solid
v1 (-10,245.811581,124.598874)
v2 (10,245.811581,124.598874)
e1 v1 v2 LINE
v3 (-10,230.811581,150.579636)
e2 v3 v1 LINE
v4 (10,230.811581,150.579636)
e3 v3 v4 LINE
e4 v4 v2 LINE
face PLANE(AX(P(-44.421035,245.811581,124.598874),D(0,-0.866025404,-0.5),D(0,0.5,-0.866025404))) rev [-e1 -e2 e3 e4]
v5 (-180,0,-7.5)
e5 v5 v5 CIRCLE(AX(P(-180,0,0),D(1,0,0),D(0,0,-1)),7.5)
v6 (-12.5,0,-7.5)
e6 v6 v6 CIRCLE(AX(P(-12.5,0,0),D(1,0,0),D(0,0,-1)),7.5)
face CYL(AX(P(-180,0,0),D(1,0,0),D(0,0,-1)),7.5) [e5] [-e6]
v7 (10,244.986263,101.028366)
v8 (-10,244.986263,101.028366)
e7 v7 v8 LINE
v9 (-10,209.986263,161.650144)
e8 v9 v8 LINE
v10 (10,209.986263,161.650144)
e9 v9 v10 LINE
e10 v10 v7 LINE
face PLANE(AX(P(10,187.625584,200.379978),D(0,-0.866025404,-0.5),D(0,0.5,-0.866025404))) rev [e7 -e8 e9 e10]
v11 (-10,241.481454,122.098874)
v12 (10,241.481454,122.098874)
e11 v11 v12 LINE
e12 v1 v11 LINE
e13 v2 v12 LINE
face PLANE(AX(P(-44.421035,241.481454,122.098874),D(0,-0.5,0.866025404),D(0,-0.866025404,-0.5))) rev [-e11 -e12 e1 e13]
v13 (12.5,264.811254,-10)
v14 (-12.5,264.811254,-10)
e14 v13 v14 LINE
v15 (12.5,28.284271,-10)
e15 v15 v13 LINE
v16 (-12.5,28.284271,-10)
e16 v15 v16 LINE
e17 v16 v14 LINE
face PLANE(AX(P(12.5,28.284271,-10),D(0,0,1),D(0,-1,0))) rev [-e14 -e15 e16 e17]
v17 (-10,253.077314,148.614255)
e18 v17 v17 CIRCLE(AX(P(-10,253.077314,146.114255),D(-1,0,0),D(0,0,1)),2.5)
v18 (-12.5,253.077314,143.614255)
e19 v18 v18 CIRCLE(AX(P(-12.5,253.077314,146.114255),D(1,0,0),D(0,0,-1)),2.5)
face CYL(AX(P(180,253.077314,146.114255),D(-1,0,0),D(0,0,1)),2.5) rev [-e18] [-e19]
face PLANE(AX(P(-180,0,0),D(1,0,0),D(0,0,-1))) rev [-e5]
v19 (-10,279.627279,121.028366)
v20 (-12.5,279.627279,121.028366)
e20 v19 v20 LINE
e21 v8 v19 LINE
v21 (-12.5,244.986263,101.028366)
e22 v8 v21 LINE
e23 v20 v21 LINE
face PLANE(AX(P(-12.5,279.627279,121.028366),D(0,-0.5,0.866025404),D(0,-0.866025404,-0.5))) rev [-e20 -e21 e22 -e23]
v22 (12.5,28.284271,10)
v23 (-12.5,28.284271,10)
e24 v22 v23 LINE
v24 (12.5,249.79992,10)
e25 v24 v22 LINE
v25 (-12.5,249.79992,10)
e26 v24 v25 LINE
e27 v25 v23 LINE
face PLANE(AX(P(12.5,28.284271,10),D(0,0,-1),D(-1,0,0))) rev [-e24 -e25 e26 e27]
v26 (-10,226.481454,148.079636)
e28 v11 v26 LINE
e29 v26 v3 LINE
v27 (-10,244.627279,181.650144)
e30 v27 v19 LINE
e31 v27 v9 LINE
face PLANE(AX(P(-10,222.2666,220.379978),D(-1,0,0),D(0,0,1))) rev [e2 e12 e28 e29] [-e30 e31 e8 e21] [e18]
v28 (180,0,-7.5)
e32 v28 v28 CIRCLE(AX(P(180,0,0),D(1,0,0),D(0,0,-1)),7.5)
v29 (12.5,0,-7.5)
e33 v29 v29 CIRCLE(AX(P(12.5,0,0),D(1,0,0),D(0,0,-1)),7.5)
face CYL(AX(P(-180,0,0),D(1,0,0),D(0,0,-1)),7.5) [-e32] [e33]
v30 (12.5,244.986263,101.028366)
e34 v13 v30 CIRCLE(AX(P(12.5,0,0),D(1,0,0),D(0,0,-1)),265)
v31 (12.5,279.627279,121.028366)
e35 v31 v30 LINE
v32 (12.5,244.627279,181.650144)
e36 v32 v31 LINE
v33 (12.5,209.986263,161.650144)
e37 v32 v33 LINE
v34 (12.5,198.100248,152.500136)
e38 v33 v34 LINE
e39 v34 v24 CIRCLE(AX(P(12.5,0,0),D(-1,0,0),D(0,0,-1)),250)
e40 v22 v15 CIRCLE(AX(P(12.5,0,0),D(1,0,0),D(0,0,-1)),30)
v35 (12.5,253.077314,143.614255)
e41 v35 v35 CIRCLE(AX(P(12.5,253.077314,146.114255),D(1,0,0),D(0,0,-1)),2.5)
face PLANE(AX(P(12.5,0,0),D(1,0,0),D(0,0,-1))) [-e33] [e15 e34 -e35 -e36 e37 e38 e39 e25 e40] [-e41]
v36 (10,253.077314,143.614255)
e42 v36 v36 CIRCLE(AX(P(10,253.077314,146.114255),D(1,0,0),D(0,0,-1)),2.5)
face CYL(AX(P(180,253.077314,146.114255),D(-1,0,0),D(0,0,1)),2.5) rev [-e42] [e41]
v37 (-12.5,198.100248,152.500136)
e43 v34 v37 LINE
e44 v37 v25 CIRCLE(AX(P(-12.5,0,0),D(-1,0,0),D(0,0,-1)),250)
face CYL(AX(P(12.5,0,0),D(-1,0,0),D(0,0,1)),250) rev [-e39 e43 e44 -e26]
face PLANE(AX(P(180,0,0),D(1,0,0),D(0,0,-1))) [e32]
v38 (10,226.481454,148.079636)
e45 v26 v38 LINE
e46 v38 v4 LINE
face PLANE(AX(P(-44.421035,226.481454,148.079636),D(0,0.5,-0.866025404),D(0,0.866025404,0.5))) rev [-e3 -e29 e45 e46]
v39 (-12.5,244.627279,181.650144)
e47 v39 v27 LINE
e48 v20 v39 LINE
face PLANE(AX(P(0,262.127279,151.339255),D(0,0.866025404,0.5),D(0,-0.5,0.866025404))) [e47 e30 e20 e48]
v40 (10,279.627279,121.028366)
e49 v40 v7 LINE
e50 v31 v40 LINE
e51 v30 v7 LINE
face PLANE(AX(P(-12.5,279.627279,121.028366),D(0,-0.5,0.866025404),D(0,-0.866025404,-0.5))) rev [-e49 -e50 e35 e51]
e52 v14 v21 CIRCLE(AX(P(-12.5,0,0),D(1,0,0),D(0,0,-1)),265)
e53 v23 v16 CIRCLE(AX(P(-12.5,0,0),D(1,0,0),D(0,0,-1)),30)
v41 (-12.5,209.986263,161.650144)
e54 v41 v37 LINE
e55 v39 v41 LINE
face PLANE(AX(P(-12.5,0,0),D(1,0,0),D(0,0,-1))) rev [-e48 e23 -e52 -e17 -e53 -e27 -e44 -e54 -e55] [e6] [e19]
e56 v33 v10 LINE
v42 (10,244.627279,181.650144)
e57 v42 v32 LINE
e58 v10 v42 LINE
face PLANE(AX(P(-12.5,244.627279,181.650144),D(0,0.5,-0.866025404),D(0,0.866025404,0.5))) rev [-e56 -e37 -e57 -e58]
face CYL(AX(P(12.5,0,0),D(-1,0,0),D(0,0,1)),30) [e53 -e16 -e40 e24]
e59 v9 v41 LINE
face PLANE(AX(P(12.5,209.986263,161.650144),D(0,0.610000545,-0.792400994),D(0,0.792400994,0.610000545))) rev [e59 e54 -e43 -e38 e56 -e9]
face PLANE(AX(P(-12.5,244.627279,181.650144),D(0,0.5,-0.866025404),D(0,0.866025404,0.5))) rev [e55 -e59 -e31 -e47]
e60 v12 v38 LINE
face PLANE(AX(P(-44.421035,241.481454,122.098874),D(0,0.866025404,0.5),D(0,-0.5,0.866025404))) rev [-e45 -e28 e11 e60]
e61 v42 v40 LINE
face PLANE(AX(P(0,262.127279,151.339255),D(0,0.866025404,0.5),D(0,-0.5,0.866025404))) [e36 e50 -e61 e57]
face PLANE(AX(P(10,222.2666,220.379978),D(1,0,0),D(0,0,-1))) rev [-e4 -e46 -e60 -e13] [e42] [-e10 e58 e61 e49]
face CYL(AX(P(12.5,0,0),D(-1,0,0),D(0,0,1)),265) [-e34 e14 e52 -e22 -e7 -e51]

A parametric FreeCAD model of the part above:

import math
import FreeCAD as App
import Part
import Sketcher

V = App.Vector
Q = App.Units.Quantity

doc = App.newDocument("Part")
body = doc.addObject("PartDesign::Body", "Body")

sketch1 = body.newObject("Sketcher::SketchObject", "Sketch")
sketch1.AttachmentSupport = (doc.getObject("YZ_Plane"), [""])
sketch1.MapMode = "FlatFace"
sketch1.addGeometry([
    Part.LineSegment(V(28, -10, 0), V(265, -10, 0)),
    Part.ArcOfCircle(Part.Circle(V(0, 0, 0), V(0, 0, 1), 265), math.radians(-2), math.radians(22)),
    Part.LineSegment(V(245, 101, 0), V(210, 162, 0)),
    Part.LineSegment(V(210, 162, 0), V(198, 153, 0)),
    Part.ArcOfCircle(Part.Circle(V(0, 0, 0), V(0, 0, 1), 250), math.radians(2), math.radians(38)),
    Part.LineSegment(V(250, 10, 0), V(28, 10, 0)),
    Part.ArcOfCircle(Part.Circle(V(0, 0, 0), V(0, 0, 1), 30), math.radians(19), math.radians(341)),
], False)
sketch1.addConstraint([
    Sketcher.Constraint("Coincident", 0, 2, 1, 1),
    Sketcher.Constraint("Coincident", 1, 2, 2, 1),
    Sketcher.Constraint("Coincident", 2, 2, 3, 1),
    Sketcher.Constraint("Coincident", 3, 2, 4, 2),
    Sketcher.Constraint("Coincident", 4, 1, 5, 1),
    Sketcher.Constraint("Coincident", 5, 2, 6, 1),
    Sketcher.Constraint("Coincident", 6, 2, 0, 1),
    Sketcher.Constraint("Horizontal", 0),
    Sketcher.Constraint("Horizontal", 5),
    Sketcher.Constraint("Coincident", 1, 3, -1, 1),
    Sketcher.Constraint("Coincident", 4, 3, -1, 1),
    Sketcher.Constraint("Coincident", 6, 3, -1, 1),
    Sketcher.Constraint("Vertical", 5, 2, 6, 2),
    Sketcher.Constraint("Radius", 1, 265.0),
    Sketcher.Constraint("Radius", 4, 250.0),
    Sketcher.Constraint("Radius", 6, 30.0),
    Sketcher.Constraint("Angle", 2, Q("120 deg")),
    Sketcher.Constraint("Distance", 2, 70.0),
    Sketcher.Constraint("Distance", 3, 15.0),
    Sketcher.Constraint("DistanceY", 0, 2, -1, 1, 10.0),
    Sketcher.Constraint("DistanceX", -1, 1, 3, 2, 198.100248),
])
pad1 = body.newObject("PartDesign::Pad", "Pad")
pad1.Profile = sketch1
pad1.Type = "TwoLengths"
pad1.Length = 12.5
pad1.Length2 = 12.5

sketch2 = body.newObject("Sketcher::SketchObject", "Sketch001")
sketch2.AttachmentSupport = (doc.getObject("YZ_Plane"), [""])
sketch2.MapMode = "FlatFace"
sketch2.addGeometry(Part.Circle(V(0, 0, 0), V(0, 0, 1), 8), False)
sketch2.addConstraint([
    Sketcher.Constraint("Coincident", 0, 3, -1, 1),
    Sketcher.Constraint("Diameter", 0, 15.0),
])
pad2 = body.newObject("PartDesign::Pad", "Pad001")
pad2.Profile = sketch2
pad2.Type = "TwoLengths"
pad2.Length = 180
pad2.Length2 = 180

sketch3 = body.newObject("Sketcher::SketchObject", "Sketch002")
sketch3.Placement = App.Placement(V(0, 227.486263, 131.339255), App.Rotation(V(1, 0, 0), V(0, 0.5, -0.866025404), V(0, 0.866025404, 0.5), "ZXY"))
sketch3.addGeometry([
    Part.LineSegment(V(-12, 35, 0), V(-12, -35, 0)),
    Part.LineSegment(V(-12, -35, 0), V(12, -35, 0)),
    Part.LineSegment(V(12, -35, 0), V(12, 35, 0)),
    Part.LineSegment(V(12, 35, 0), V(-12, 35, 0)),
], False)
sketch3.addConstraint([
    Sketcher.Constraint("Coincident", 0, 2, 1, 1),
    Sketcher.Constraint("Coincident", 1, 2, 2, 1),
    Sketcher.Constraint("Coincident", 2, 2, 3, 1),
    Sketcher.Constraint("Coincident", 3, 2, 0, 1),
    Sketcher.Constraint("Vertical", 0),
    Sketcher.Constraint("Horizontal", 1),
    Sketcher.Constraint("Vertical", 2),
    Sketcher.Constraint("Horizontal", 3),
    Sketcher.Constraint("Symmetric", 0, 2, 2, 2, -1, 1),
    Sketcher.Constraint("DistanceX", 1, 1, 1, 2, 25.0),
    Sketcher.Constraint("DistanceY", 0, 2, 0, 1, 70.0),
])
pad3 = body.newObject("PartDesign::Pad", "Pad002")
pad3.Profile = sketch3
pad3.Length = 40

sketch4 = body.newObject("Sketcher::SketchObject", "Sketch003")
sketch4.Placement = App.Placement(V(0, 17.5, -30.310889), App.Rotation(V(-1, 0, 0), V(0, 0.866025404, 0.5), V(0, 0.5, -0.866025404), "ZXY"))
sketch4.addGeometry([
    Part.LineSegment(V(-10, 303, 0), V(-10, 263, 0)),
    Part.LineSegment(V(-10, 263, 0), V(10, 263, 0)),
    Part.LineSegment(V(10, 263, 0), V(10, 303, 0)),
    Part.LineSegment(V(10, 303, 0), V(-10, 303, 0)),
], False)
sketch4.addConstraint([
    Sketcher.Constraint("Coincident", 0, 2, 1, 1),
    Sketcher.Constraint("Coincident", 1, 2, 2, 1),
    Sketcher.Constraint("Coincident", 2, 2, 3, 1),
    Sketcher.Constraint("Coincident", 3, 2, 0, 1),
    Sketcher.Constraint("Vertical", 0),
    Sketcher.Constraint("Horizontal", 1),
    Sketcher.Constraint("Vertical", 2),
    Sketcher.Constraint("Horizontal", 3),
    Sketcher.Constraint("DistanceX", 1, 1, 1, 2, 20.0),
    Sketcher.Constraint("DistanceY", 0, 2, 0, 1, 40.0),
    Sketcher.Constraint("DistanceX", 0, 2, -1, 1, 10.0),
    Sketcher.Constraint("DistanceY", -1, 1, 0, 2, 262.678511),
])
pocket1 = body.newObject("PartDesign::Pocket", "Pocket")
pocket1.Profile = sketch4
pocket1.Length = 70

sketch5 = body.newObject("Sketcher::SketchObject", "Sketch004")
sketch5.AttachmentSupport = (doc.getObject("YZ_Plane"), [""])
sketch5.MapMode = "FlatFace"
sketch5.AttachmentOffset = App.Placement(V(0, 0, 10), App.Rotation())
sketch5.addGeometry(Part.Circle(V(253.1, 146.1, 0), V(0, 0, 1), 2.5), False)
sketch5.addConstraint([
    Sketcher.Constraint("Diameter", 0, 5.0),
    Sketcher.Constraint("DistanceX", -1, 1, 0, 3, 253.077314),
    Sketcher.Constraint("DistanceY", -1, 1, 0, 3, 146.114255),
])
pocket2 = body.newObject("PartDesign::Pocket", "Pocket001")
pocket2.Profile = sketch5
pocket2.Type = "ThroughAll"
pocket2.Midplane = True

sketch6 = body.newObject("Sketcher::SketchObject", "Sketch005")
sketch6.AttachmentSupport = (doc.getObject("YZ_Plane"), [""])
sketch6.MapMode = "FlatFace"
sketch6.AttachmentOffset = App.Placement(V(0, 0, 10), App.Rotation())
sketch6.addGeometry([
    Part.LineSegment(V(246, 125, 0), V(241, 122, 0)),
    Part.LineSegment(V(241, 122, 0), V(226, 148, 0)),
    Part.LineSegment(V(226, 148, 0), V(231, 151, 0)),
    Part.LineSegment(V(231, 151, 0), V(246, 125, 0)),
], False)
sketch6.addConstraint([
    Sketcher.Constraint("Coincident", 0, 2, 1, 1),
    Sketcher.Constraint("Coincident", 1, 2, 2, 1),
    Sketcher.Constraint("Coincident", 2, 2, 3, 1),
    Sketcher.Constraint("Coincident", 3, 2, 0, 1),
    Sketcher.Constraint("Perpendicular", 0, 1),
    Sketcher.Constraint("Perpendicular", 1, 2),
    Sketcher.Constraint("Perpendicular", 2, 3),
    Sketcher.Constraint("Angle", 0, Q("-150 deg")),
    Sketcher.Constraint("Distance", 0, 5.0),
    Sketcher.Constraint("Distance", 1, 30.0),
    Sketcher.Constraint("DistanceX", -1, 1, 2, 2, 230.811581),
    Sketcher.Constraint("DistanceY", -1, 1, 0, 2, 122.098874),
])
pad4 = body.newObject("PartDesign::Pad", "Pad003")
pad4.Profile = sketch6
pad4.Length = 20
pad4.Reversed = True

doc.recompute()
